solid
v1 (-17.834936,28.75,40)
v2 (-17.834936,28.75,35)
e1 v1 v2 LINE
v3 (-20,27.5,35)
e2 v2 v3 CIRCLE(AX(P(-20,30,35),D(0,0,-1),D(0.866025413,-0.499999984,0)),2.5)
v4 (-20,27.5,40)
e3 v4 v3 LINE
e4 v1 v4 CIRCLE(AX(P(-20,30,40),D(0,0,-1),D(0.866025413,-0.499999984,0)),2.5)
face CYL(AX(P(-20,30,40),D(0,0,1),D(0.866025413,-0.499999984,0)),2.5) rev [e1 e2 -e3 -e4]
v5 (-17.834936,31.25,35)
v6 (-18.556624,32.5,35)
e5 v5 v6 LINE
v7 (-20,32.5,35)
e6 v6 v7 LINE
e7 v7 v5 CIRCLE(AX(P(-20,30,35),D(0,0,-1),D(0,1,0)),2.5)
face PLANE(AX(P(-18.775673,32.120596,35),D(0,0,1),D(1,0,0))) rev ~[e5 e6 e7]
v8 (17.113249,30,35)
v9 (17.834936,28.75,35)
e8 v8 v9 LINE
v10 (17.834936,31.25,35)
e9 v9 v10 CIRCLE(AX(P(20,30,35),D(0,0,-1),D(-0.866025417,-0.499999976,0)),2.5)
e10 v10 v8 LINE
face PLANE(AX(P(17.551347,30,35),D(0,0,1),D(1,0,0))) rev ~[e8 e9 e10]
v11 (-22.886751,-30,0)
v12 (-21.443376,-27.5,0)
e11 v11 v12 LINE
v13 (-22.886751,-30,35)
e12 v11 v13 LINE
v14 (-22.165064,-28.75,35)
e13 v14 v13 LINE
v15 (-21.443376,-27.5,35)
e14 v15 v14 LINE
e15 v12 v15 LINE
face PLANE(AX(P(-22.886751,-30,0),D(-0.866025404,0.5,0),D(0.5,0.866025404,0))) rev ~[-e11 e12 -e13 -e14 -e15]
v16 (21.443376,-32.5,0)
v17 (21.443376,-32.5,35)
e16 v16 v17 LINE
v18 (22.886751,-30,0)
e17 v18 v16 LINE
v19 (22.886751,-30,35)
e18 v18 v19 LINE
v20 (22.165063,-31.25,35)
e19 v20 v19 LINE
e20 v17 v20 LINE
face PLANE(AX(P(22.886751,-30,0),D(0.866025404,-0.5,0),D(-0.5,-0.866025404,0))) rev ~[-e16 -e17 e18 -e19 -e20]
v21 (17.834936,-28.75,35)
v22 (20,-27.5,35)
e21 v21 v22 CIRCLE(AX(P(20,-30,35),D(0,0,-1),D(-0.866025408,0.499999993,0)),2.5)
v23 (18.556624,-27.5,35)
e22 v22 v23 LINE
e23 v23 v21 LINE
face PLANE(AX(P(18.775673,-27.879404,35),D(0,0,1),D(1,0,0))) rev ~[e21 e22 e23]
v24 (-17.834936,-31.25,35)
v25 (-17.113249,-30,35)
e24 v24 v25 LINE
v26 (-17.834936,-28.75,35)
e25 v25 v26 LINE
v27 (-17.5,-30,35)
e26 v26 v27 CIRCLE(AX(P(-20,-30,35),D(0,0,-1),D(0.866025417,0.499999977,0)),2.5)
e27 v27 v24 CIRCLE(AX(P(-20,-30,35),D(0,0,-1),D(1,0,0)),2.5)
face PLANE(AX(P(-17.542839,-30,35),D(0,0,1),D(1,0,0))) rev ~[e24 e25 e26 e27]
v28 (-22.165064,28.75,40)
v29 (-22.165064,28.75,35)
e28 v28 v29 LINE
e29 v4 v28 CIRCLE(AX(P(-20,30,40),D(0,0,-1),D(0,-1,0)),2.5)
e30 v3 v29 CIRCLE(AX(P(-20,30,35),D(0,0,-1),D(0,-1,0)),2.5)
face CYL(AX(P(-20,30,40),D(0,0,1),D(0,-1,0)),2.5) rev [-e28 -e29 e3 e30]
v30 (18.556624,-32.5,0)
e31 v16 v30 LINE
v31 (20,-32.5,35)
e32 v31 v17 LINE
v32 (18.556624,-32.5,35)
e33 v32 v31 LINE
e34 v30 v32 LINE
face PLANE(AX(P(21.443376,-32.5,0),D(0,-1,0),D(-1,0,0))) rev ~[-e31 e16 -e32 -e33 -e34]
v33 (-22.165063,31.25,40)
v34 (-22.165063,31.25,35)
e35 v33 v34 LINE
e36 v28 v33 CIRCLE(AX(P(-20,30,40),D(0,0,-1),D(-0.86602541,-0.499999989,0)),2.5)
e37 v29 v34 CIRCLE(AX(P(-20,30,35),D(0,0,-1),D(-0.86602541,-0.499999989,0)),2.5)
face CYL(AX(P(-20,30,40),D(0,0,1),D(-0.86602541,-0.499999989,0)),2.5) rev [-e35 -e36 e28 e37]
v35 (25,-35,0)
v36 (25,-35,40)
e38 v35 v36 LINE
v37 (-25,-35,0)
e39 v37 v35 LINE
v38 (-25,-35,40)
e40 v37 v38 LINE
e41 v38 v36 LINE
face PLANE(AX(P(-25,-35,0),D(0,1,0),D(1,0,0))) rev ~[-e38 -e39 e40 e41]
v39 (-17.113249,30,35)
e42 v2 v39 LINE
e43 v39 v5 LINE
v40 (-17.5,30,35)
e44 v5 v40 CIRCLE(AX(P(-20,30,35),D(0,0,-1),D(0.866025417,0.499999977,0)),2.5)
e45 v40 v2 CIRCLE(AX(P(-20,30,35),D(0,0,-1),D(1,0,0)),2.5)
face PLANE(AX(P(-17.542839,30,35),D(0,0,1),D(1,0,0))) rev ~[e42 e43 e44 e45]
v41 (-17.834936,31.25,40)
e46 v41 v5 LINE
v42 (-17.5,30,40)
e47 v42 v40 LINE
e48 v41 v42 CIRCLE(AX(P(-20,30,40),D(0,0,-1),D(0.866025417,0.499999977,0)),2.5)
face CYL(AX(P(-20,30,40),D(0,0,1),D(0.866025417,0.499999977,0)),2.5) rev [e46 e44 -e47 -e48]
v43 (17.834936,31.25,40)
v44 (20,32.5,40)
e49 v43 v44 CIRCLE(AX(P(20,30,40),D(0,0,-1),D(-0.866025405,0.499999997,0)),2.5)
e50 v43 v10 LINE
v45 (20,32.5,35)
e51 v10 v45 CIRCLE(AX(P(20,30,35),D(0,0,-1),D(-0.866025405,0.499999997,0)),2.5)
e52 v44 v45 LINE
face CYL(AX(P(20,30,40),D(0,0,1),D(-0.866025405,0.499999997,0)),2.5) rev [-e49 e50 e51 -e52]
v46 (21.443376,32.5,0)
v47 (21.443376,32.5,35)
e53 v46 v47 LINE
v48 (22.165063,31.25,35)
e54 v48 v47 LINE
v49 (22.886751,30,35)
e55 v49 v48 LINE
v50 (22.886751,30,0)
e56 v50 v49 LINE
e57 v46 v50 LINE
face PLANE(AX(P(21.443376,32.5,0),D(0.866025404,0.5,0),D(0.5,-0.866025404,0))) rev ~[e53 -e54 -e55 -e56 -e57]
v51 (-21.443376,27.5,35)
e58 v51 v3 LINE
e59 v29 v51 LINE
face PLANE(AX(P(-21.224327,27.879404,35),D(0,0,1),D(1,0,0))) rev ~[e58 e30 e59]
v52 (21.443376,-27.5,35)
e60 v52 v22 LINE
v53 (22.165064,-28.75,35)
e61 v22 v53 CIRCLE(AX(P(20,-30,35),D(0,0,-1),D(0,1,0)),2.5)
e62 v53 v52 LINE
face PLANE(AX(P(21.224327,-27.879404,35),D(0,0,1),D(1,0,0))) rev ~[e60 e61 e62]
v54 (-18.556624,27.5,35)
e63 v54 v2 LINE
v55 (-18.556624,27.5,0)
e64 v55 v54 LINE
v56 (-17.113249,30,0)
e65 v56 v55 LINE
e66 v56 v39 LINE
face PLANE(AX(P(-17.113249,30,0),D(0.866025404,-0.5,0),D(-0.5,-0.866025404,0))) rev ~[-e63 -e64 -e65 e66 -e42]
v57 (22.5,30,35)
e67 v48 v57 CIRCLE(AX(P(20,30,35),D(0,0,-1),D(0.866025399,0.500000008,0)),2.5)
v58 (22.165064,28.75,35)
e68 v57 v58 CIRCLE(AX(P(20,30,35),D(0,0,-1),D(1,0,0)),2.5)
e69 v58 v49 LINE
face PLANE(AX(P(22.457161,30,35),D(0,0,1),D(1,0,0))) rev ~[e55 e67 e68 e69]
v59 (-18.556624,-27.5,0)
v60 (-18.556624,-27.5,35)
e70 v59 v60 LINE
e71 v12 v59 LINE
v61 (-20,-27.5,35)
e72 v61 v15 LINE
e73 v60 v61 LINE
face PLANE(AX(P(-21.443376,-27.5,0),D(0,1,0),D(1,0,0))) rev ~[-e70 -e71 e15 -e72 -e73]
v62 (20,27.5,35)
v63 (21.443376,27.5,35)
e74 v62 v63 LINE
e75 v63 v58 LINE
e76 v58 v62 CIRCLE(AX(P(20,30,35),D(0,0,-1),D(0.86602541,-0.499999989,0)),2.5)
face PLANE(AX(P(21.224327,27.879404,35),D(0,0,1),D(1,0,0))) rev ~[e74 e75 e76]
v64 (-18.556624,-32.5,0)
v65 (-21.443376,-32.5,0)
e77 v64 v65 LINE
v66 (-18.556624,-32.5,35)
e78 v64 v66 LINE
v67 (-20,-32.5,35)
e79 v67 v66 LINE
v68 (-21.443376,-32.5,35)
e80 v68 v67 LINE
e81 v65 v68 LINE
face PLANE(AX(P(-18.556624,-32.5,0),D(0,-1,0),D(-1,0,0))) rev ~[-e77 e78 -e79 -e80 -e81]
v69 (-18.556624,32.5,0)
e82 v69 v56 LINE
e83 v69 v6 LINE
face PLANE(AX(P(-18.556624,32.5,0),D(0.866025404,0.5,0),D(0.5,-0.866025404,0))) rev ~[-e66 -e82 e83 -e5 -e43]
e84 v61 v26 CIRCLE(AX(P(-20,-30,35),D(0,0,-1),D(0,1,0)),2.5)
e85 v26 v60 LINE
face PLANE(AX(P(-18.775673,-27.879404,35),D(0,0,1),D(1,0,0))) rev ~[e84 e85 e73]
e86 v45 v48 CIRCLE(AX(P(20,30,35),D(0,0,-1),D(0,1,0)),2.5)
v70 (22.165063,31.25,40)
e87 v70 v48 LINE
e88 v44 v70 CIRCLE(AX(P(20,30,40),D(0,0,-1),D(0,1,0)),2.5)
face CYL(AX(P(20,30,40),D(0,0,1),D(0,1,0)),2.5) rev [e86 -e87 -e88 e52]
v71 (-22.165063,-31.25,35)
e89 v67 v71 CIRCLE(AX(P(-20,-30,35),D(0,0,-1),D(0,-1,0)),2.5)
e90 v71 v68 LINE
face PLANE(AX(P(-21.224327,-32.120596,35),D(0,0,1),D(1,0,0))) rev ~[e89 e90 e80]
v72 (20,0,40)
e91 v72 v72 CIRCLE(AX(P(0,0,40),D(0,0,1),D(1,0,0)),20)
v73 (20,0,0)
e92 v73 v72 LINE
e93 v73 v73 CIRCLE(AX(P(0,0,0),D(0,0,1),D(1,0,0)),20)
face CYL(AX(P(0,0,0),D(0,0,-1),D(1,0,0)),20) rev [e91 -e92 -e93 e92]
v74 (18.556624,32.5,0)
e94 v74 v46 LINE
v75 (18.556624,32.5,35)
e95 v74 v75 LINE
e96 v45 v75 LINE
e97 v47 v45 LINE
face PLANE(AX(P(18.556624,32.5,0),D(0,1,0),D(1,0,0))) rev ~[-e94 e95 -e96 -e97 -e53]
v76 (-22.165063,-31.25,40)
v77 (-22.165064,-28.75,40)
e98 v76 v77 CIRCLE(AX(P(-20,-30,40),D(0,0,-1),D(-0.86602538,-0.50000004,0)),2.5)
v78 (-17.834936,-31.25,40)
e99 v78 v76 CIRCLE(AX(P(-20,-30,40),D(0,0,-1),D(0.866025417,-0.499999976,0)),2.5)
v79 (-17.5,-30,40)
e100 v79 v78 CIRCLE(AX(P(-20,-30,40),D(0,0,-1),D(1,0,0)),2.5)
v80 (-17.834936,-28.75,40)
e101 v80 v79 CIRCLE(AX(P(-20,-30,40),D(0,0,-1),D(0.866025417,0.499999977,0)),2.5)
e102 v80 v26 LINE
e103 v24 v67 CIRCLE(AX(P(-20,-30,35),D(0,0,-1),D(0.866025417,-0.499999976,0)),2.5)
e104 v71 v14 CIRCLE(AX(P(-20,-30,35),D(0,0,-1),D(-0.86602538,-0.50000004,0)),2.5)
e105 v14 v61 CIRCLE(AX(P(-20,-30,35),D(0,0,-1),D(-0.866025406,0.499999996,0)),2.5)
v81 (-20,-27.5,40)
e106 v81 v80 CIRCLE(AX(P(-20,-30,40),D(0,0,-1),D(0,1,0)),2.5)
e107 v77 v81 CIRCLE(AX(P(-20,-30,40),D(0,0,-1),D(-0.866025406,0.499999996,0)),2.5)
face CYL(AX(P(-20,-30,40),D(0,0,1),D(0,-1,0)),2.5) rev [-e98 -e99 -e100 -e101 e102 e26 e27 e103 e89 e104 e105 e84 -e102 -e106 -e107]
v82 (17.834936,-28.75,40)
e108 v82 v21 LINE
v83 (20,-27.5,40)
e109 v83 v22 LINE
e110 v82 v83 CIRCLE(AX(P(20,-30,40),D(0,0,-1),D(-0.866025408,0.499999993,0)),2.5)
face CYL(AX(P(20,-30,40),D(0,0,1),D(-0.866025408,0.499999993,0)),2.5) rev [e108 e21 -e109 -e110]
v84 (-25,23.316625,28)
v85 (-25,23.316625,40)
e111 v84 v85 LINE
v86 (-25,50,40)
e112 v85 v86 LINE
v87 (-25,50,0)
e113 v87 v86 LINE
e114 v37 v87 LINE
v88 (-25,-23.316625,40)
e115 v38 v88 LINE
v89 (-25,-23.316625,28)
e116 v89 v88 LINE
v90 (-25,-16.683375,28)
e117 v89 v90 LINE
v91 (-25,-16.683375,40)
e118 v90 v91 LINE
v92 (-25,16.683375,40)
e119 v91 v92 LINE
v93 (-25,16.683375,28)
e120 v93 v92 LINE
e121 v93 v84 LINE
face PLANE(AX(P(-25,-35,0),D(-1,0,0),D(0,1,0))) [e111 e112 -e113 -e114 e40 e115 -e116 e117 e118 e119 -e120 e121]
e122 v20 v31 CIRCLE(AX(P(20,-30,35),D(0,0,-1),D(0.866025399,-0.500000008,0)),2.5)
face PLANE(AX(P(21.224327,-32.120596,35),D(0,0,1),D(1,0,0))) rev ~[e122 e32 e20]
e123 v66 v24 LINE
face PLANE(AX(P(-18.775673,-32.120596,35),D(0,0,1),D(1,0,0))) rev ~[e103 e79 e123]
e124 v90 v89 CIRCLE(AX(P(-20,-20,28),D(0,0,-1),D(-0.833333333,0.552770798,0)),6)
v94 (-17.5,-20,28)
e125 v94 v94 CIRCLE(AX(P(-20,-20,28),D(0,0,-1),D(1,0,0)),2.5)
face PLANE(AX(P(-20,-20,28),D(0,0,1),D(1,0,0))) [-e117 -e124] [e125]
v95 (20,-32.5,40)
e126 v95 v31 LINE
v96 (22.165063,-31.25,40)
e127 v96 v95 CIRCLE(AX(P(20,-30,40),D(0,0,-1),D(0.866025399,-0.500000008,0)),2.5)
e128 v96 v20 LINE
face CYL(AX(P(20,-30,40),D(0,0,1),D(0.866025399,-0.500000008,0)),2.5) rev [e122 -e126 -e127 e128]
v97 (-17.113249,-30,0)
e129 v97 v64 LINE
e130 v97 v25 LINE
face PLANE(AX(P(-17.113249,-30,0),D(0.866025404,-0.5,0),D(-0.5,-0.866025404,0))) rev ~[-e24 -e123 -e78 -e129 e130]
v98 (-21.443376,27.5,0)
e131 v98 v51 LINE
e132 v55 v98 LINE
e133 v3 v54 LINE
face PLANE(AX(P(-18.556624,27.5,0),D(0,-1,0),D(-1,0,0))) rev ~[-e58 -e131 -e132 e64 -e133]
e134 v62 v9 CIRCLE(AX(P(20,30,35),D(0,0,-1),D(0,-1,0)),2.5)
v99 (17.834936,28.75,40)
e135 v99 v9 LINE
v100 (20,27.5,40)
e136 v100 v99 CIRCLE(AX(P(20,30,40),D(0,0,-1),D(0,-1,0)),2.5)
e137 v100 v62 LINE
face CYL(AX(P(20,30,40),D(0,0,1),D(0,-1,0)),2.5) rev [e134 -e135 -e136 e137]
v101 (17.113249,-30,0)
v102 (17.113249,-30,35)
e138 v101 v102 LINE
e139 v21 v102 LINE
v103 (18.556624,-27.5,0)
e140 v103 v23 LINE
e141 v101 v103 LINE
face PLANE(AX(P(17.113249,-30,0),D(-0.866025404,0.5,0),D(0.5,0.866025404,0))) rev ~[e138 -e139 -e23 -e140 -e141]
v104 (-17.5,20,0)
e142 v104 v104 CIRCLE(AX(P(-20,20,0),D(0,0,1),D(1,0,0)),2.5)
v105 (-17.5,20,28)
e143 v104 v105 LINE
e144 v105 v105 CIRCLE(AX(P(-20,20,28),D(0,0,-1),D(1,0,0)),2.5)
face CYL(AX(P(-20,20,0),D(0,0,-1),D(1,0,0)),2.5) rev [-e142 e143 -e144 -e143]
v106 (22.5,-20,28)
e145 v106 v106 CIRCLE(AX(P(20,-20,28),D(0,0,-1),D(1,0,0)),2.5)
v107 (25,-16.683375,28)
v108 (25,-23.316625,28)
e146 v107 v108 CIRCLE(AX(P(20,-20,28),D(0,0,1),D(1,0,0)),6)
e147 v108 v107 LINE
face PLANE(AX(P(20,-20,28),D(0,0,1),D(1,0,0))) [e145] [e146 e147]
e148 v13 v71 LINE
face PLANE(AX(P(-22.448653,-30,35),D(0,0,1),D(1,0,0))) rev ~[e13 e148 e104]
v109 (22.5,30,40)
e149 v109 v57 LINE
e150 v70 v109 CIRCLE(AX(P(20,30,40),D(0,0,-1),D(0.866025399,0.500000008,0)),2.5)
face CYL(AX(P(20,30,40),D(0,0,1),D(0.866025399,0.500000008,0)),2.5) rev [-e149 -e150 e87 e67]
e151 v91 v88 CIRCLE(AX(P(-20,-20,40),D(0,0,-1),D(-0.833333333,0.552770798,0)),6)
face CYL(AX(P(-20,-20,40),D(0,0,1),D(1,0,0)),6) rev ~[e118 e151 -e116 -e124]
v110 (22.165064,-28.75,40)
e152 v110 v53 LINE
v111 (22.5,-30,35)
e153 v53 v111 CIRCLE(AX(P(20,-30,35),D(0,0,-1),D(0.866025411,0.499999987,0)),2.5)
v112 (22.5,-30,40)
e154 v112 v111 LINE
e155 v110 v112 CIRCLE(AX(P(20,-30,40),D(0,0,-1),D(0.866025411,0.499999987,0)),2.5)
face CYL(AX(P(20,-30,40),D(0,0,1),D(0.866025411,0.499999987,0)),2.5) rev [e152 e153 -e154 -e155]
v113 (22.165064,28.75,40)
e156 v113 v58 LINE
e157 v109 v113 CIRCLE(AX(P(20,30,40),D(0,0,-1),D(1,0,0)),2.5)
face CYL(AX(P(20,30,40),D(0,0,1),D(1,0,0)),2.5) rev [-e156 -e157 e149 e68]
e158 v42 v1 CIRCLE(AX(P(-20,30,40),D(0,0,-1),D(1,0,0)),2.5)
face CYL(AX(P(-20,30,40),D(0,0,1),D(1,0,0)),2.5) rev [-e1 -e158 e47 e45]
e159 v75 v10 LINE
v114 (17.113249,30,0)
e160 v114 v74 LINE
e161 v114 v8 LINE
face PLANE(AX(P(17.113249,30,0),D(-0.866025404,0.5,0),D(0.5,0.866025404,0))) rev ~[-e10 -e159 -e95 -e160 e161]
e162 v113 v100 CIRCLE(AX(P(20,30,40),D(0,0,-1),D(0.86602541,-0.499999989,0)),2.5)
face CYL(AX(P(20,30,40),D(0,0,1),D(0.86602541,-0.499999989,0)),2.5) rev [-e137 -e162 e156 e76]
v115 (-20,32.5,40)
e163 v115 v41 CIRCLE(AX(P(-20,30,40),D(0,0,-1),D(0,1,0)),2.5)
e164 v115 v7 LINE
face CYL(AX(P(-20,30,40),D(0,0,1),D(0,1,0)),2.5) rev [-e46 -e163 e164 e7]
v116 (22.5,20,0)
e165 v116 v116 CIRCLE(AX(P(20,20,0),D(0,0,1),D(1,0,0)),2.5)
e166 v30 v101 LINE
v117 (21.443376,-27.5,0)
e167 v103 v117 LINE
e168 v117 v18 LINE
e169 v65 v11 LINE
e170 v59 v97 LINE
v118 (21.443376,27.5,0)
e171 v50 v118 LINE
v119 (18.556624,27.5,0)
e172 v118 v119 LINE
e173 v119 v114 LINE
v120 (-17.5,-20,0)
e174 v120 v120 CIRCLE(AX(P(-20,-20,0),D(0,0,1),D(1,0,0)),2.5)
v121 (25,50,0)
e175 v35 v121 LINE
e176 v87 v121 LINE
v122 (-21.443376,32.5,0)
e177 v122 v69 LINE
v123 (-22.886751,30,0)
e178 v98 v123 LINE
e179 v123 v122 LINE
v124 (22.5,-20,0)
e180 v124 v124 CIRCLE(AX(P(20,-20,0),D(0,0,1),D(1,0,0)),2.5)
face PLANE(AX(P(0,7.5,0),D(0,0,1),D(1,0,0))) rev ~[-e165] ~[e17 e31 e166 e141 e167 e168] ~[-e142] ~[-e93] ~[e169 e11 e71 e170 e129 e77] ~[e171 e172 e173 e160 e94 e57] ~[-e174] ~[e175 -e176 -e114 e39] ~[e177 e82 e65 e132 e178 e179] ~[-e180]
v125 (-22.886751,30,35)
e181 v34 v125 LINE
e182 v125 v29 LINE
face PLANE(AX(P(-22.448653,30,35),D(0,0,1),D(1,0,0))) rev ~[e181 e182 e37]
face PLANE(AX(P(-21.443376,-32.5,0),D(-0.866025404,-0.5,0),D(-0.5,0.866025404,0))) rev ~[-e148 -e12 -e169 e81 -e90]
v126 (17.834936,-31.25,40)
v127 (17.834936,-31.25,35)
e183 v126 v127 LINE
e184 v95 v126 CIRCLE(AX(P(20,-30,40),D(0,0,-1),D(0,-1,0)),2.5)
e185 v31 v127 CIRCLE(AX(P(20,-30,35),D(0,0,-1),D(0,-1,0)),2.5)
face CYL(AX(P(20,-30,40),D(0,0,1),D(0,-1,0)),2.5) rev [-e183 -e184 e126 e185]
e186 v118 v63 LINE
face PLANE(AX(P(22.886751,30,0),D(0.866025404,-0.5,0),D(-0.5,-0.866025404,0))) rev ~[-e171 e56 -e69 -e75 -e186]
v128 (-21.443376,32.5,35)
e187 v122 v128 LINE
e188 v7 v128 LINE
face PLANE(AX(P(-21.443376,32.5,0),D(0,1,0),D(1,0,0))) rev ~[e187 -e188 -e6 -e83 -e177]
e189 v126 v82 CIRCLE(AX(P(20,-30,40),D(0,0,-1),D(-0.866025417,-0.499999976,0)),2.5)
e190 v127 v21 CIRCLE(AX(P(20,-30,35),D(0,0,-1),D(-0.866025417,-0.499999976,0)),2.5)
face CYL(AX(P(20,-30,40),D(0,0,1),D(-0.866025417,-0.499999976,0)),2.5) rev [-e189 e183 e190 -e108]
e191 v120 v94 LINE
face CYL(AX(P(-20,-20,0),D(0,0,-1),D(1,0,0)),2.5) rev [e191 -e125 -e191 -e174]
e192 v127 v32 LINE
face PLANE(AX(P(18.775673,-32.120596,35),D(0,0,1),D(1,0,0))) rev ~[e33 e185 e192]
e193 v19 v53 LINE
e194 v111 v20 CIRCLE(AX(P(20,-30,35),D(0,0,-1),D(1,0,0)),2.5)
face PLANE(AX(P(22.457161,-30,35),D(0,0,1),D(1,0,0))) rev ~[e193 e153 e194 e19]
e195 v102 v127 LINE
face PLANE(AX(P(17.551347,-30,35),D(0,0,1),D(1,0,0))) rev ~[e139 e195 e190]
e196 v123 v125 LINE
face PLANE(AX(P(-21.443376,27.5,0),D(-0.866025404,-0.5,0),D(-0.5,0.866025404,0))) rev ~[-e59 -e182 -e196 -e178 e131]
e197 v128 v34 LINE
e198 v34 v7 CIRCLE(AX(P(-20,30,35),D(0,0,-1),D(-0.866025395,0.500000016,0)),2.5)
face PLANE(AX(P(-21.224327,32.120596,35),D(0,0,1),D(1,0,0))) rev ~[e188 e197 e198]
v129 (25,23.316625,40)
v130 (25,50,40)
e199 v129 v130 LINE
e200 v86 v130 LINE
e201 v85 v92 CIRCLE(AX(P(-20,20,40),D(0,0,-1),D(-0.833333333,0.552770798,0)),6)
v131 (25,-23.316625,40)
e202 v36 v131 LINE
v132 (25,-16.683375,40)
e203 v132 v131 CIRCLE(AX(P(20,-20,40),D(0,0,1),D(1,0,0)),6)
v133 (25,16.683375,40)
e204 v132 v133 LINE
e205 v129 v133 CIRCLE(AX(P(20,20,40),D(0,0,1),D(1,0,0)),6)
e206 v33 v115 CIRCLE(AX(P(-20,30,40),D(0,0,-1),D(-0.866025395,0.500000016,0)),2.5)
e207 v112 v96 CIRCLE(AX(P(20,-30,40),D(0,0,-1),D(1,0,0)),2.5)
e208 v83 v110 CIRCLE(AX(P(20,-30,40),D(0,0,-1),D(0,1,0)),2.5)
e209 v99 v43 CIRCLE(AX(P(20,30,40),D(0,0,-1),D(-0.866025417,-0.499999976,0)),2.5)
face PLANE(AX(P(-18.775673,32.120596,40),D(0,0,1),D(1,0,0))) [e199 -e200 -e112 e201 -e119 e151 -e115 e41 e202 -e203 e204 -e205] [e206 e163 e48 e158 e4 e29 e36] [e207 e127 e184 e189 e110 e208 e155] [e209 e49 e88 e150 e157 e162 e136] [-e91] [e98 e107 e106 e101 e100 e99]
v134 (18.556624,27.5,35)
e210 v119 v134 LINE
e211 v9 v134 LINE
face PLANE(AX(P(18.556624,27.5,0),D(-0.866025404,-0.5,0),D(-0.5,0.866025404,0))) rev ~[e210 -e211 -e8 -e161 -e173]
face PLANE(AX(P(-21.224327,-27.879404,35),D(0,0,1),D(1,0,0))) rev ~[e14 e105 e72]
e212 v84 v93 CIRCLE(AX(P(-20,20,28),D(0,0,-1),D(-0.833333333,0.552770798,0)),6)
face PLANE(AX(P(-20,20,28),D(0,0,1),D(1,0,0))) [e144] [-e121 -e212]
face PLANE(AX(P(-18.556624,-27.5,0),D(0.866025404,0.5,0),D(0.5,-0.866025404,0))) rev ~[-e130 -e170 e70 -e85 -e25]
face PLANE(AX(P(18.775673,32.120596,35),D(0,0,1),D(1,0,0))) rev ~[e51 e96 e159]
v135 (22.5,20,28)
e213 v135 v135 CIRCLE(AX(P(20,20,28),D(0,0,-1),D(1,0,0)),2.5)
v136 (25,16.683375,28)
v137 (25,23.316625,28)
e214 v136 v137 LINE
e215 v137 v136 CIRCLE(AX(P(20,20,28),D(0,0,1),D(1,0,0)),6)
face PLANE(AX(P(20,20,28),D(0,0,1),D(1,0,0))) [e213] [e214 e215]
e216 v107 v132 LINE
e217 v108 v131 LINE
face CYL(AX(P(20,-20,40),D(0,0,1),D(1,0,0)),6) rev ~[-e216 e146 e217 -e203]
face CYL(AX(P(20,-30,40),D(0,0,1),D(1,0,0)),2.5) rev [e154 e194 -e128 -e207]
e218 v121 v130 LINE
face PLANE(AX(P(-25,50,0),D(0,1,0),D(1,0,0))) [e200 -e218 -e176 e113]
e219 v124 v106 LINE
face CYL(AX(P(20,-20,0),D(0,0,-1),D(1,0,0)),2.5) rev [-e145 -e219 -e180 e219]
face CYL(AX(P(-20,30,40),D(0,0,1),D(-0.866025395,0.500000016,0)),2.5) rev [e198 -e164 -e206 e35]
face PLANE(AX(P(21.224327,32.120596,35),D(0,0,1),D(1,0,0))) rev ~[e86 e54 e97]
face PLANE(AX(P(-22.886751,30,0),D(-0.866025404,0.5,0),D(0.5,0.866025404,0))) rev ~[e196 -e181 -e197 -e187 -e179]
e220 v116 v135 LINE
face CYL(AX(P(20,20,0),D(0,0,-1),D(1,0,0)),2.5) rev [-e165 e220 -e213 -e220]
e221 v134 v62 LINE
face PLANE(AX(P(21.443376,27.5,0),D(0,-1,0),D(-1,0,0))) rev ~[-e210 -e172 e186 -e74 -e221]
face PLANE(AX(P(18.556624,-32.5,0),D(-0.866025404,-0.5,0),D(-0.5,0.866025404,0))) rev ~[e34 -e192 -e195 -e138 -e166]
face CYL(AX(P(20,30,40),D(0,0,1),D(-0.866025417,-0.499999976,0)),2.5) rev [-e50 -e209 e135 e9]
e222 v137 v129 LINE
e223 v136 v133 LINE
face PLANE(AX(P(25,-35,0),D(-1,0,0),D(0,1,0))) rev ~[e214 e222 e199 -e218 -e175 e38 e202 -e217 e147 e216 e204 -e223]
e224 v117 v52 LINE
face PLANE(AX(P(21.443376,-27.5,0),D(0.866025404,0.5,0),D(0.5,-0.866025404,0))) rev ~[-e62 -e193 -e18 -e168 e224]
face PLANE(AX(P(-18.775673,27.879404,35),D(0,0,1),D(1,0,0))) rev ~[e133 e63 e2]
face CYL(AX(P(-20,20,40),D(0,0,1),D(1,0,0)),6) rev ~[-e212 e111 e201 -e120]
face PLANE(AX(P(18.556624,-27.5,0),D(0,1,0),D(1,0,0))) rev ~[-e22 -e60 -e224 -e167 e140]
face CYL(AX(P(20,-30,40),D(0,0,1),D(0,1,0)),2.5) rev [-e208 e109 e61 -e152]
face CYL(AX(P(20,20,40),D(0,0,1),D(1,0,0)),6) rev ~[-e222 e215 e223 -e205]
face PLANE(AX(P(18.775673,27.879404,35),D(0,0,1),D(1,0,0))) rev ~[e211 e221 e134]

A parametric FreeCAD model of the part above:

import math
import FreeCAD as App
import Part
import Sketcher
Q = App.Units.Quantity


def add_polygon(sketch, points):
    """Adds a closed chain of lines whose ends are joined by coincident constraints."""
    first, n = sketch.GeometryCount, len(points)
    for a, b in zip(points, points[1:] + points[:1]):
        sketch.addGeometry(Part.LineSegment(App.Vector(*a, 0), App.Vector(*b, 0)), False)
    for i in range(n):
        sketch.addConstraint(Sketcher.Constraint("Coincident", first + i, 2, first + (i + 1) % n, 1))

doc = App.newDocument("Part")
params = doc.addObject("Spreadsheet::Sheet", "Params")
for row, (alias, value) in enumerate([
    ("sketch1_diameter", "5 mm"),
    ("sketch1_diameter2", "40 mm"),
    ("sketch1_width", "50 mm"),
    ("sketch1_height", "85 mm"),
    ("pad1_length", "40 mm"),
    ("sketch2_radius", "2.5 mm"),
    ("pad2_length", "5 mm"),
    ("sketch3_diameter", "12 mm"),
    ("pocket1_length", "12 mm"),
], start=1):
    params.set(f"A{row}", alias)
    params.set(f"B{row}", "=" + value)
    params.setAlias(f"B{row}", alias)

body = doc.addObject("PartDesign::Body", "Body")

# Sketch on XY plane
sketch1 = body.newObject("Sketcher::SketchObject", "Sketch")
sketch1.AttachmentSupport = (doc.getObject("XY_Plane"), [""])
sketch1.MapMode = "FlatFace"
add_polygon(sketch1, [(-25, 50), (-25, -35), (25, -35), (25, 50)])  # lines 0-3
add_polygon(sketch1, [(-22.9, -30), (-21.4, -27.5), (-18.6, -27.5), (-17.1, -30), (-18.6, -32.5), (-21.4, -32.5)])  # lines 4-9
sketch1.addGeometry(Part.Circle(App.Vector(-20, -20, 0), App.Vector(0, 0, 1), 2.5), False)  # 10
add_polygon(sketch1, [(21.4, -32.5), (18.6, -32.5), (17.1, -30), (18.6, -27.5), (21.4, -27.5), (22.9, -30)])  # lines 11-16
sketch1.addGeometry(Part.Circle(App.Vector(20, -20, 0), App.Vector(0, 0, 1), 2.5), False)  # 17
sketch1.addGeometry(Part.Circle(App.Vector(-20, 20, 0), App.Vector(0, 0, 1), 2.5), False)  # 18
add_polygon(sketch1, [(-17.1, 30), (-18.6, 27.5), (-21.4, 27.5), (-22.9, 30), (-21.4, 32.5), (-18.6, 32.5)])  # lines 19-24
sketch1.addGeometry(Part.Circle(App.Vector(0, 0, 0), App.Vector(0, 0, 1), 20), False)  # 25
sketch1.addGeometry(Part.Circle(App.Vector(20, 20, 0), App.Vector(0, 0, 1), 2.5), False)  # 26
add_polygon(sketch1, [(22.9, 30), (21.4, 27.5), (18.6, 27.5), (17.1, 30), (18.6, 32.5), (21.4, 32.5)])  # lines 27-32
sketch1.addConstraint([
    Sketcher.Constraint("Vertical", 0),
    Sketcher.Constraint("Horizontal", 1),
    Sketcher.Constraint("Vertical", 2),
    Sketcher.Constraint("Horizontal", 3),
    Sketcher.Constraint("Horizontal", 5),
    Sketcher.Constraint("Horizontal", 8),
    Sketcher.Constraint("Horizontal", 11),
    Sketcher.Constraint("Horizontal", 14),
    Sketcher.Constraint("Horizontal", 20),
    Sketcher.Constraint("Horizontal", 23),
    Sketcher.Constraint("Horizontal", 28),
    Sketcher.Constraint("Horizontal", 31),
    Sketcher.Constraint("Coincident", 25, 3, -1, 1),
    Sketcher.Constraint("Equal", 10, 17),
    Sketcher.Constraint("Equal", 17, 18),
    Sketcher.Constraint("Equal", 18, 26),
    Sketcher.Constraint("Symmetric", 17, 3, 18, 3, -1, 1),
    Sketcher.Constraint("Symmetric", 10, 3, 26, 3, -1, 1),
    Sketcher.Constraint("Symmetric", 13, 2, 19, 2, -1, 1),
    Sketcher.Constraint("Symmetric", 15, 2, 21, 2, -1, 1),
    Sketcher.Constraint("Symmetric", 16, 2, 22, 2, -1, 1),
    Sketcher.Constraint("Symmetric", 12, 2, 24, 2, -1, 1),
    Sketcher.Constraint("Symmetric", 4, 2, 27, 2, -1, 1),
    Sketcher.Constraint("Symmetric", 6, 2, 29, 2, -1, 1),
    Sketcher.Constraint("Symmetric", 7, 2, 30, 2, -1, 1),
    Sketcher.Constraint("Symmetric", 9, 2, 32, 2, -1, 1),
    Sketcher.Constraint("Symmetric", 10, 3, 17, 3, -2),
    Sketcher.Constraint("Symmetric", 7, 2, 11, 2, -2),
    Sketcher.Constraint("Symmetric", 6, 2, 12, 2, -2),
    Sketcher.Constraint("Symmetric", 5, 2, 13, 2, -2),
    Sketcher.Constraint("Symmetric", 9, 2, 15, 2, -2),
    Sketcher.Constraint("Parallel", 4, 7),
    Sketcher.Constraint("Parallel", 6, 9),
    Sketcher.Constraint("Parallel", 9, 12),
    Sketcher.Constraint("Parallel", 12, 15),
    Sketcher.Constraint("Parallel", 13, 16),
    Sketcher.Constraint("Parallel", 15, 21),
    Sketcher.Constraint("Parallel", 21, 24),
    Sketcher.Constraint("Parallel", 24, 29),
    Sketcher.Constraint("Parallel", 29, 32),
    Sketcher.Constraint("Horizontal", 6, 2, 9, 2),
    Sketcher.Constraint("Vertical", 5, 2, 7, 2),
    Sketcher.Constraint("Diameter", 10, Q("5 mm")),
    Sketcher.Constraint("Diameter", 25, Q("40 mm")),
    Sketcher.Constraint("DistanceX", 1, 1, 1, 2, Q("50 mm")),
    Sketcher.Constraint("DistanceY", 0, 2, 0, 1, Q("85 mm")),
    Sketcher.Constraint("Angle", 4, Q("60 deg")),
    Sketcher.Constraint("DistanceX", 10, 3, -1, 1, Q("20 mm")),
    Sketcher.Constraint("DistanceY", 10, 3, -1, 1, Q("20 mm")),
    Sketcher.Constraint("DistanceX", 0, 2, -1, 1, Q("25 mm")),
    Sketcher.Constraint("DistanceY", 0, 2, -1, 1, Q("35 mm")),
    Sketcher.Constraint("DistanceY", 6, 2, -1, 1, Q("30 mm")),
    Sketcher.Constraint("DistanceY", 7, 2, 5, 2, Q("5 mm")),
    Sketcher.Constraint("DistanceX", 19, 2, 27, 2, Q("40 mm")),
    Sketcher.Constraint("DistanceX", 5, 1, 5, 2, Q("2.886751 mm")),
])
sketch1.setExpression("Constraints[70]", "Params.sketch1_diameter")
sketch1.setExpression("Constraints[71]", "Params.sketch1_diameter2")
sketch1.setExpression("Constraints[72]", "Params.sketch1_width")
sketch1.setExpression("Constraints[73]", "Params.sketch1_height")
pad1 = body.newObject("PartDesign::Pad", "Pad")
pad1.Profile = sketch1
pad1.setExpression("Length", "Params.pad1_length")

# Sketch on XY plane
sketch2 = body.newObject("Sketcher::SketchObject", "Sketch001")
sketch2.AttachmentSupport = (doc.getObject("XY_Plane"), [""])
sketch2.MapMode = "FlatFace"
sketch2.AttachmentOffset = App.Placement(App.Vector(0, 0, 40), App.Rotation())
sketch2.addGeometry([
    Part.ArcOfCircle(Part.Circle(App.Vector(-20, 30, 0), App.Vector(0, 0, 1), 2.5), math.radians(30), math.radians(90)),  # 0
    Part.LineSegment(App.Vector(-17.8, 31.2, 0), App.Vector(-18.6, 32.5, 0)),  # 1
    Part.LineSegment(App.Vector(-18.6, 32.5, 0), App.Vector(-20, 32.5, 0)),  # 2
    Part.ArcOfCircle(Part.Circle(App.Vector(-20, 30, 0), App.Vector(0, 0, 1), 2.5), math.radians(90), math.radians(150)),  # 3
    Part.LineSegment(App.Vector(-20, 32.5, 0), App.Vector(-21.4, 32.5, 0)),  # 4
    Part.LineSegment(App.Vector(-21.4, 32.5, 0), App.Vector(-22.2, 31.3, 0)),  # 5
    Part.ArcOfCircle(Part.Circle(App.Vector(-20, 30, 0), App.Vector(0, 0, 1), 2.5), math.radians(150), math.radians(210)),  # 6
    Part.LineSegment(App.Vector(-22.2, 31.3, 0), App.Vector(-22.9, 30, 0)),  # 7
    Part.LineSegment(App.Vector(-22.9, 30, 0), App.Vector(-22.2, 28.8, 0)),  # 8
    Part.LineSegment(App.Vector(-21.4, 27.5, 0), App.Vector(-20, 27.5, 0)),  # 9
    Part.ArcOfCircle(Part.Circle(App.Vector(-20, 30, 0), App.Vector(0, 0, 1), 2.5), math.radians(-150), math.radians(-90)),  # 10
    Part.LineSegment(App.Vector(-22.2, 28.8, 0), App.Vector(-21.4, 27.5, 0)),  # 11
    Part.LineSegment(App.Vector(-18.6, 27.5, 0), App.Vector(-17.8, 28.8, 0)),  # 12
    Part.ArcOfCircle(Part.Circle(App.Vector(-20, 30, 0), App.Vector(0, 0, 1), 2.5), math.radians(-90), math.radians(-30)),  # 13
    Part.LineSegment(App.Vector(-20, 27.5, 0), App.Vector(-18.6, 27.5, 0)),  # 14
    Part.ArcOfCircle(Part.Circle(App.Vector(-20, 30, 0), App.Vector(0, 0, 1), 2.5), math.radians(0), math.radians(30)),  # 15
    Part.ArcOfCircle(Part.Circle(App.Vector(-20, 30, 0), App.Vector(0, 0, 1), 2.5), math.radians(-30), math.radians(0)),  # 16
    Part.LineSegment(App.Vector(-17.8, 28.8, 0), App.Vector(-17.1, 30, 0)),  # 17
    Part.LineSegment(App.Vector(-17.1, 30, 0), App.Vector(-17.8, 31.2, 0)),  # 18
    Part.ArcOfCircle(Part.Circle(App.Vector(20, 30, 0), App.Vector(0, 0, 1), 2.5), math.radians(90), math.radians(150)),  # 19
    Part.LineSegment(App.Vector(20, 32.5, 0), App.Vector(18.6, 32.5, 0)),  # 20
    Part.LineSegment(App.Vector(18.6, 32.5, 0), App.Vector(17.8, 31.2, 0)),  # 21
    Part.ArcOfCircle(Part.Circle(App.Vector(20, 30, 0), App.Vector(0, 0, 1), 2.5), math.radians(30), math.radians(90)),  # 22
    Part.LineSegment(App.Vector(22.2, 31.3, 0), App.Vector(21.4, 32.5, 0)),  # 23
    Part.LineSegment(App.Vector(21.4, 32.5, 0), App.Vector(20, 32.5, 0)),  # 24
    Part.ArcOfCircle(Part.Circle(App.Vector(20, 30, 0), App.Vector(0, 0, 1), 2.5), math.radians(0), math.radians(30)),  # 25
    Part.ArcOfCircle(Part.Circle(App.Vector(20, 30, 0), App.Vector(0, 0, 1), 2.5), math.radians(-30), math.radians(0)),  # 26
    Part.LineSegment(App.Vector(22.2, 28.8, 0), App.Vector(22.9, 30, 0)),  # 27
    Part.LineSegment(App.Vector(22.9, 30, 0), App.Vector(22.2, 31.3, 0)),  # 28
    Part.LineSegment(App.Vector(21.4, 27.5, 0), App.Vector(22.2, 28.8, 0)),  # 29
    Part.ArcOfCircle(Part.Circle(App.Vector(20, 30, 0), App.Vector(0, 0, 1), 2.5), math.radians(-90), math.radians(-30)),  # 30
    Part.LineSegment(App.Vector(20, 27.5, 0), App.Vector(21.4, 27.5, 0)),  # 31
    Part.LineSegment(App.Vector(18.6, 27.5, 0), App.Vector(20, 27.5, 0)),  # 32
    Part.ArcOfCircle(Part.Circle(App.Vector(20, 30, 0), App.Vector(0, 0, 1), 2.5), math.radians(-150), math.radians(-90)),  # 33
    Part.LineSegment(App.Vector(17.8, 28.8, 0), App.Vector(18.6, 27.5, 0)),  # 34
    Part.ArcOfCircle(Part.Circle(App.Vector(20, 30, 0), App.Vector(0, 0, 1), 2.5), math.radians(150), math.radians(210)),  # 35
    Part.LineSegment(App.Vector(17.8, 31.2, 0), App.Vector(17.1, 30, 0)),  # 36
    Part.LineSegment(App.Vector(17.1, 30, 0), App.Vector(17.8, 28.8, 0)),  # 37
    Part.LineSegment(App.Vector(18.6, -32.5, 0), App.Vector(20, -32.5, 0)),  # 38
    Part.ArcOfCircle(Part.Circle(App.Vector(20, -30, 0), App.Vector(0, 0, 1), 2.5), math.radians(-150), math.radians(-90)),  # 39
    Part.LineSegment(App.Vector(17.8, -31.2, 0), App.Vector(18.6, -32.5, 0)),  # 40
    Part.LineSegment(App.Vector(21.4, -32.5, 0), App.Vector(22.2, -31.3, 0)),  # 41
    Part.ArcOfCircle(Part.Circle(App.Vector(20, -30, 0), App.Vector(0, 0, 1), 2.5), math.radians(-90), math.radians(-30)),  # 42
    Part.LineSegment(App.Vector(20, -32.5, 0), App.Vector(21.4, -32.5, 0)),  # 43
    Part.ArcOfCircle(Part.Circle(App.Vector(20, -30, 0), App.Vector(0, 0, 1), 2.5), math.radians(0), math.radians(30)),  # 44
    Part.ArcOfCircle(Part.Circle(App.Vector(20, -30, 0), App.Vector(0, 0, 1), 2.5), math.radians(-30), math.radians(0)),  # 45
    Part.LineSegment(App.Vector(22.2, -31.3, 0), App.Vector(22.9, -30, 0)),  # 46
    Part.LineSegment(App.Vector(22.9, -30, 0), App.Vector(22.2, -28.8, 0)),  # 47
    Part.ArcOfCircle(Part.Circle(App.Vector(20, -30, 0), App.Vector(0, 0, 1), 2.5), math.radians(30), math.radians(90)),  # 48
    Part.LineSegment(App.Vector(22.2, -28.8, 0), App.Vector(21.4, -27.5, 0)),  # 49
    Part.LineSegment(App.Vector(21.4, -27.5, 0), App.Vector(20, -27.5, 0)),  # 50
    Part.ArcOfCircle(Part.Circle(App.Vector(20, -30, 0), App.Vector(0, 0, 1), 2.5), math.radians(90), math.radians(150)),  # 51
    Part.LineSegment(App.Vector(20, -27.5, 0), App.Vector(18.6, -27.5, 0)),  # 52
    Part.LineSegment(App.Vector(18.6, -27.5, 0), App.Vector(17.8, -28.8, 0)),  # 53
    Part.ArcOfCircle(Part.Circle(App.Vector(20, -30, 0), App.Vector(0, 0, 1), 2.5), math.radians(150), math.radians(210)),  # 54
    Part.LineSegment(App.Vector(17.8, -28.8, 0), App.Vector(17.1, -30, 0)),  # 55
    Part.LineSegment(App.Vector(17.1, -30, 0), App.Vector(17.8, -31.2, 0)),  # 56
    Part.LineSegment(App.Vector(-18.6, -32.5, 0), App.Vector(-17.8, -31.2, 0)),  # 57
    Part.ArcOfCircle(Part.Circle(App.Vector(-20, -30, 0), App.Vector(0, 0, 1), 2.5), math.radians(-90), math.radians(-30)),  # 58
    Part.LineSegment(App.Vector(-20, -32.5, 0), App.Vector(-18.6, -32.5, 0)),  # 59
    Part.LineSegment(App.Vector(-21.4, -32.5, 0), App.Vector(-20, -32.5, 0)),  # 60
    Part.ArcOfCircle(Part.Circle(App.Vector(-20, -30, 0), App.Vector(0, 0, 1), 2.5), math.radians(-150), math.radians(-90)),  # 61
    Part.LineSegment(App.Vector(-22.2, -31.3, 0), App.Vector(-21.4, -32.5, 0)),  # 62
    Part.ArcOfCircle(Part.Circle(App.Vector(-20, -30, 0), App.Vector(0, 0, 1), 2.5), math.radians(150), math.radians(210)),  # 63
    Part.LineSegment(App.Vector(-22.2, -28.8, 0), App.Vector(-22.9, -30, 0)),  # 64
    Part.LineSegment(App.Vector(-22.9, -30, 0), App.Vector(-22.2, -31.3, 0)),  # 65
    Part.ArcOfCircle(Part.Circle(App.Vector(-20, -30, 0), App.Vector(0, 0, 1), 2.5), math.radians(90), math.radians(150)),  # 66
    Part.LineSegment(App.Vector(-20, -27.5, 0), App.Vector(-21.4, -27.5, 0)),  # 67
    Part.LineSegment(App.Vector(-21.4, -27.5, 0), App.Vector(-22.2, -28.8, 0)),  # 68
    Part.ArcOfCircle(Part.Circle(App.Vector(-20, -30, 0), App.Vector(0, 0, 1), 2.5), math.radians(30), math.radians(90)),  # 69
    Part.LineSegment(App.Vector(-17.8, -28.8, 0), App.Vector(-18.6, -27.5, 0)),  # 70
    Part.LineSegment(App.Vector(-18.6, -27.5, 0), App.Vector(-20, -27.5, 0)),  # 71
    Part.ArcOfCircle(Part.Circle(App.Vector(-20, -30, 0), App.Vector(0, 0, 1), 2.5), math.radians(0), math.radians(30)),  # 72
    Part.ArcOfCircle(Part.Circle(App.Vector(-20, -30, 0), App.Vector(0, 0, 1), 2.5), math.radians(-30), math.radians(0)),  # 73
    Part.LineSegment(App.Vector(-17.8, -31.2, 0), App.Vector(-17.1, -30, 0)),  # 74
    Part.LineSegment(App.Vector(-17.1, -30, 0), App.Vector(-17.8, -28.8, 0)),  # 75
], False)
sketch2.addConstraint([
    Sketcher.Constraint("Tangent", 0, 1, 1, 1),
    Sketcher.Constraint("Coincident", 1, 2, 2, 1),
    Sketcher.Constraint("Tangent", 2, 2, 0, 2),
    Sketcher.Constraint("Tangent", 3, 1, 4, 1),
    Sketcher.Constraint("Coincident", 4, 2, 5, 1),
    Sketcher.Constraint("Tangent", 5, 2, 3, 2),
    Sketcher.Constraint("Tangent", 6, 1, 7, 1),
    Sketcher.Constraint("Coincident", 7, 2, 8, 1),
    Sketcher.Constraint("Tangent", 8, 2, 6, 2),
    Sketcher.Constraint("Tangent", 9, 2, 10, 2),
    Sketcher.Constraint("Tangent", 10, 1, 11, 1),
    Sketcher.Constraint("Coincident", 11, 2, 9, 1),
    Sketcher.Constraint("Tangent", 12, 2, 13, 2),
    Sketcher.Constraint("Tangent", 13, 1, 14, 1),
    Sketcher.Constraint("Coincident", 14, 2, 12, 1),
    Sketcher.Constraint("Tangent", 15, 1, 16, 2),
    Sketcher.Constraint("Tangent", 16, 1, 17, 1),
    Sketcher.Constraint("Coincident", 17, 2, 18, 1),
    Sketcher.Constraint("Tangent", 18, 2, 15, 2),
    Sketcher.Constraint("Tangent", 19, 1, 20, 1),
    Sketcher.Constraint("Coincident", 20, 2, 21, 1),
    Sketcher.Constraint("Tangent", 21, 2, 19, 2),
    Sketcher.Constraint("Tangent", 22, 1, 23, 1),
    Sketcher.Constraint("Coincident", 23, 2, 24, 1),
    Sketcher.Constraint("Tangent", 24, 2, 22, 2),
    Sketcher.Constraint("Tangent", 25, 1, 26, 2),
    Sketcher.Constraint("Tangent", 26, 1, 27, 1),
    Sketcher.Constraint("Coincident", 27, 2, 28, 1),
    Sketcher.Constraint("Tangent", 28, 2, 25, 2),
    Sketcher.Constraint("Tangent", 29, 2, 30, 2),
    Sketcher.Constraint("Tangent", 30, 1, 31, 1),
    Sketcher.Constraint("Coincident", 31, 2, 29, 1),
    Sketcher.Constraint("Tangent", 32, 2, 33, 2),
    Sketcher.Constraint("Tangent", 33, 1, 34, 1),
    Sketcher.Constraint("Coincident", 34, 2, 32, 1),
    Sketcher.Constraint("Tangent", 35, 1, 36, 1),
    Sketcher.Constraint("Coincident", 36, 2, 37, 1),
    Sketcher.Constraint("Tangent", 37, 2, 35, 2),
    Sketcher.Constraint("Tangent", 38, 2, 39, 2),
    Sketcher.Constraint("Tangent", 39, 1, 40, 1),
    Sketcher.Constraint("Coincident", 40, 2, 38, 1),
    Sketcher.Constraint("Tangent", 41, 2, 42, 2),
    Sketcher.Constraint("Tangent", 42, 1, 43, 1),
    Sketcher.Constraint("Coincident", 43, 2, 41, 1),
    Sketcher.Constraint("Tangent", 44, 1, 45, 2),
    Sketcher.Constraint("Tangent", 45, 1, 46, 1),
    Sketcher.Constraint("Coincident", 46, 2, 47, 1),
    Sketcher.Constraint("Tangent", 47, 2, 44, 2),
    Sketcher.Constraint("Tangent", 48, 1, 49, 1),
    Sketcher.Constraint("Coincident", 49, 2, 50, 1),
    Sketcher.Constraint("Tangent", 50, 2, 48, 2),
    Sketcher.Constraint("Tangent", 51, 1, 52, 1),
    Sketcher.Constraint("Coincident", 52, 2, 53, 1),
    Sketcher.Constraint("Tangent", 53, 2, 51, 2),
    Sketcher.Constraint("Tangent", 54, 1, 55, 1),
    Sketcher.Constraint("Coincident", 55, 2, 56, 1),
    Sketcher.Constraint("Tangent", 56, 2, 54, 2),
    Sketcher.Constraint("Tangent", 57, 2, 58, 2),
    Sketcher.Constraint("Tangent", 58, 1, 59, 1),
    Sketcher.Constraint("Coincident", 59, 2, 57, 1),
    Sketcher.Constraint("Tangent", 60, 2, 61, 2),
    Sketcher.Constraint("Tangent", 61, 1, 62, 1),
    Sketcher.Constraint("Coincident", 62, 2, 60, 1),
    Sketcher.Constraint("Tangent", 63, 1, 64, 1),
    Sketcher.Constraint("Coincident", 64, 2, 65, 1),
    Sketcher.Constraint("Tangent", 65, 2, 63, 2),
    Sketcher.Constraint("Tangent", 66, 1, 67, 1),
    Sketcher.Constraint("Coincident", 67, 2, 68, 1),
    Sketcher.Constraint("Tangent", 68, 2, 66, 2),
    Sketcher.Constraint("Tangent", 69, 1, 70, 1),
    Sketcher.Constraint("Coincident", 70, 2, 71, 1),
    Sketcher.Constraint("Tangent", 71, 2, 69, 2),
    Sketcher.Constraint("Tangent", 72, 1, 73, 2),
    Sketcher.Constraint("Tangent", 73, 1, 74, 1),
    Sketcher.Constraint("Coincident", 74, 2, 75, 1),
    Sketcher.Constraint("Tangent", 75, 2, 72, 2),
    Sketcher.Constraint("Horizontal", 2),
    Sketcher.Constraint("Horizontal", 4),
    Sketcher.Constraint("Horizontal", 9),
    Sketcher.Constraint("Horizontal", 14),
    Sketcher.Constraint("Horizontal", 20),
    Sketcher.Constraint("Horizontal", 24),
    Sketcher.Constraint("Horizontal", 31),
    Sketcher.Constraint("Horizontal", 32),
    Sketcher.Constraint("Horizontal", 38),
    Sketcher.Constraint("Horizontal", 43),
    Sketcher.Constraint("Horizontal", 50),
    Sketcher.Constraint("Horizontal", 52),
    Sketcher.Constraint("Horizontal", 59),
    Sketcher.Constraint("Horizontal", 60),
    Sketcher.Constraint("Horizontal", 67),
    Sketcher.Constraint("Horizontal", 71),
    Sketcher.Constraint("Coincident", 3, 3, 0, 3),
    Sketcher.Constraint("Coincident", 6, 3, 0, 3),
    Sketcher.Constraint("Coincident", 10, 3, 0, 3),
    Sketcher.Constraint("Coincident", 13, 3, 0, 3),
    Sketcher.Constraint("Coincident", 15, 3, 0, 3),
    Sketcher.Constraint("Coincident", 22, 3, 19, 3),
    Sketcher.Constraint("Coincident", 25, 3, 19, 3),
    Sketcher.Constraint("Coincident", 30, 3, 19, 3),
    Sketcher.Constraint("Coincident", 33, 3, 19, 3),
    Sketcher.Constraint("Coincident", 35, 3, 19, 3),
    Sketcher.Constraint("Coincident", 42, 3, 39, 3),
    Sketcher.Constraint("Coincident", 44, 3, 39, 3),
    Sketcher.Constraint("Coincident", 48, 3, 39, 3),
    Sketcher.Constraint("Coincident", 51, 3, 39, 3),
    Sketcher.Constraint("Coincident", 54, 3, 39, 3),
    Sketcher.Constraint("Coincident", 61, 3, 58, 3),
    Sketcher.Constraint("Coincident", 63, 3, 58, 3),
    Sketcher.Constraint("Coincident", 66, 3, 58, 3),
    Sketcher.Constraint("Coincident", 69, 3, 58, 3),
    Sketcher.Constraint("Coincident", 72, 3, 58, 3),
    Sketcher.Constraint("Coincident", 6, 1, 5, 2),
    Sketcher.Constraint("Coincident", 10, 1, 8, 2),
    Sketcher.Constraint("Coincident", 16, 1, 12, 2),
    Sketcher.Constraint("Coincident", 18, 2, 0, 1),
    Sketcher.Constraint("Coincident", 28, 2, 22, 1),
    Sketcher.Constraint("Coincident", 29, 2, 26, 1),
    Sketcher.Constraint("Coincident", 35, 1, 21, 2),
    Sketcher.Constraint("Coincident", 37, 2, 33, 1),
    Sketcher.Constraint("Coincident", 45, 1, 41, 2),
    Sketcher.Constraint("Coincident", 48, 1, 47, 2),
    Sketcher.Constraint("Coincident", 54, 1, 53, 2),
    Sketcher.Constraint("Coincident", 56, 2, 39, 1),
    Sketcher.Constraint("Coincident", 65, 2, 61, 1),
    Sketcher.Constraint("Coincident", 68, 2, 63, 1),
    Sketcher.Constraint("Coincident", 73, 1, 57, 2),
    Sketcher.Constraint("Coincident", 75, 2, 69, 1),
    Sketcher.Constraint("Equal", 0, 3),
    Sketcher.Constraint("Equal", 10, 13),
    Sketcher.Constraint("Equal", 16, 19),
    Sketcher.Constraint("Equal", 19, 22),
    Sketcher.Constraint("Equal", 25, 26),
    Sketcher.Constraint("Equal", 35, 39),
    Sketcher.Constraint("Equal", 39, 42),
    Sketcher.Constraint("Equal", 42, 44),
    Sketcher.Constraint("Equal", 54, 58),
    Sketcher.Constraint("Equal", 58, 61),
    Sketcher.Constraint("Equal", 66, 69),
    Sketcher.Constraint("Symmetric", 0, 3, 39, 3, -1, 1),
    Sketcher.Constraint("Symmetric", 19, 3, 58, 3, -1, 1),
    Sketcher.Constraint("Symmetric", 7, 2, 46, 2, -1, 1),
    Sketcher.Constraint("Symmetric", 17, 2, 55, 2, -1, 1),
    Sketcher.Constraint("Symmetric", 27, 2, 64, 2, -1, 1),
    Sketcher.Constraint("Symmetric", 36, 2, 74, 2, -1, 1),
    Sketcher.Constraint("Symmetric", 0, 3, 19, 3, -2),
    Sketcher.Constraint("Symmetric", 7, 2, 27, 2, -2),
    Sketcher.Constraint("Symmetric", 17, 2, 36, 2, -2),
    Sketcher.Constraint("Parallel", 1, 8),
    Sketcher.Constraint("Parallel", 7, 12),
    Sketcher.Constraint("Parallel", 17, 21),
    Sketcher.Constraint("Horizontal", 7, 2, 15, 1),
    Sketcher.Constraint("Horizontal", 17, 2, 25, 1),
    Sketcher.Constraint("Horizontal", 73, 3, 44, 1),
    Sketcher.Constraint("Horizontal", 64, 2, 72, 1),
    Sketcher.Constraint("Equal", 5, 7),
    Sketcher.Constraint("Radius", 0, Q("2.5 mm")),
    Sketcher.Constraint("DistanceX", 0, 3, -1, 1, Q("20 mm")),
    Sketcher.Constraint("DistanceY", -1, 1, 0, 3, Q("30 mm")),
])
sketch2.setExpression("Constraints[156]", "Params.sketch2_radius")
pad2 = body.newObject("PartDesign::Pad", "Pad001")
pad2.Profile = sketch2
pad2.setExpression("Length", "Params.pad2_length")
pad2.Reversed = True

# Sketch on XY plane
sketch3 = body.newObject("Sketcher::SketchObject", "Sketch002")
sketch3.AttachmentSupport = (doc.getObject("XY_Plane"), [""])
sketch3.MapMode = "FlatFace"
sketch3.AttachmentOffset = App.Placement(App.Vector(0, 0, 40), App.Rotation())
sketch3.addGeometry([
    Part.Circle(App.Vector(-20, -20, 0), App.Vector(0, 0, 1), 6),
    Part.Circle(App.Vector(20, -20, 0), App.Vector(0, 0, 1), 6),
    Part.Circle(App.Vector(-20, 20, 0), App.Vector(0, 0, 1), 6),
    Part.Circle(App.Vector(20, 20, 0), App.Vector(0, 0, 1), 6),
], False)
sketch3.addConstraint([
    Sketcher.Constraint("Equal", 0, 1),
    Sketcher.Constraint("Equal", 1, 2),
    Sketcher.Constraint("Equal", 2, 3),
    Sketcher.Constraint("Symmetric", 1, 3, 2, 3, -1, 1),
    Sketcher.Constraint("Symmetric", 0, 3, 3, 3, -1, 1),
    Sketcher.Constraint("Symmetric", 0, 3, 1, 3, -2),
    Sketcher.Constraint("Diameter", 0, Q("12 mm")),
    Sketcher.Constraint("DistanceX", 0, 3, -1, 1, Q("20 mm")),
    Sketcher.Constraint("DistanceY", 0, 3, -1, 1, Q("20 mm")),
])
sketch3.setExpression("Constraints[6]", "Params.sketch3_diameter")
pocket1 = body.newObject("PartDesign::Pocket", "Pocket")
pocket1.Profile = sketch3
pocket1.setExpression("Length", "Params.pocket1_length")

doc.recompute()
